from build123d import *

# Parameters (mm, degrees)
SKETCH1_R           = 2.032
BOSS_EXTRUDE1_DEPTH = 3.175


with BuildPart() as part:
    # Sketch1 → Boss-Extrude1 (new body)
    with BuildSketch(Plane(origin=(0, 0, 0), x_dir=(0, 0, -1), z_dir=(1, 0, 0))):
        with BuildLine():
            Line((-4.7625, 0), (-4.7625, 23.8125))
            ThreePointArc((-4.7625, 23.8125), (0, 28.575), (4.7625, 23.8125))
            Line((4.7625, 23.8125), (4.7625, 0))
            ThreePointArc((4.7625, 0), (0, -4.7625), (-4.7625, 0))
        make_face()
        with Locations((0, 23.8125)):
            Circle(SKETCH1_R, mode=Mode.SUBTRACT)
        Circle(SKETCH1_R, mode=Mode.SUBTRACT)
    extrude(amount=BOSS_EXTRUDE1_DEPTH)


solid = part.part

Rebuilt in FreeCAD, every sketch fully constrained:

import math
import FreeCAD as App
import Part
import Sketcher
from FreeCAD import Vector
Q = App.Units.Quantity

doc = App.newDocument("Part")
body = doc.addObject("PartDesign::Body", "Body")

sketch1 = body.newObject("Sketcher::SketchObject", "Sketch")
sketch1.AttachmentSupport = (doc.getObject("YZ_Plane"), [""])
sketch1.MapMode = "FlatFace"
sketch1.addGeometry([
    Part.LineSegment(Vector(23.8, 4.8, 0), Vector(0, 4.8, 0)),
    Part.ArcOfCircle(Part.Circle(Vector(0, 0, 0), Vector(0, 0, 1), 4.8), math.radians(90), math.radians(270)),
    Part.LineSegment(Vector(0, -4.8, 0), Vector(23.8, -4.8, 0)),
    Part.ArcOfCircle(Part.Circle(Vector(23.8, 0, 0), Vector(0, 0, 1), 4.8), math.radians(-90), math.radians(90)),
    Part.Circle(Vector(0, 0, 0), Vector(0, 0, 1), 2),
    Part.Circle(Vector(23.8, 0, 0), Vector(0, 0, 1), 2),
], False)
sketch1.addConstraint([
    Sketcher.Constraint("Tangent", 0, 2, 1, 1),
    Sketcher.Constraint("Tangent", 1, 2, 2, 1),
    Sketcher.Constraint("Tangent", 2, 2, 3, 1),
    Sketcher.Constraint("Tangent", 3, 2, 0, 1),
    Sketcher.Constraint("Horizontal", 0),
    Sketcher.Constraint("Horizontal", 2),
    Sketcher.Constraint("Coincident", 1, 3, -1, 1),
    Sketcher.Constraint("Coincident", 4, 3, -1, 1),
    Sketcher.Constraint("Coincident", 5, 3, 3, 3),
    Sketcher.Constraint("Equal", 4, 5),
    Sketcher.Constraint("Diameter", 4, Q("0.16 in")),
    Sketcher.Constraint("Radius", 1, Q("0.1875 in")),
    Sketcher.Constraint("DistanceX", 0, 2, 0, 1, Q("0.9375 in")),
])
pad1 = body.newObject("PartDesign::Pad", "Pad")
pad1.Profile = sketch1
pad1.Length = Q("0.125 in")

doc.recompute()
